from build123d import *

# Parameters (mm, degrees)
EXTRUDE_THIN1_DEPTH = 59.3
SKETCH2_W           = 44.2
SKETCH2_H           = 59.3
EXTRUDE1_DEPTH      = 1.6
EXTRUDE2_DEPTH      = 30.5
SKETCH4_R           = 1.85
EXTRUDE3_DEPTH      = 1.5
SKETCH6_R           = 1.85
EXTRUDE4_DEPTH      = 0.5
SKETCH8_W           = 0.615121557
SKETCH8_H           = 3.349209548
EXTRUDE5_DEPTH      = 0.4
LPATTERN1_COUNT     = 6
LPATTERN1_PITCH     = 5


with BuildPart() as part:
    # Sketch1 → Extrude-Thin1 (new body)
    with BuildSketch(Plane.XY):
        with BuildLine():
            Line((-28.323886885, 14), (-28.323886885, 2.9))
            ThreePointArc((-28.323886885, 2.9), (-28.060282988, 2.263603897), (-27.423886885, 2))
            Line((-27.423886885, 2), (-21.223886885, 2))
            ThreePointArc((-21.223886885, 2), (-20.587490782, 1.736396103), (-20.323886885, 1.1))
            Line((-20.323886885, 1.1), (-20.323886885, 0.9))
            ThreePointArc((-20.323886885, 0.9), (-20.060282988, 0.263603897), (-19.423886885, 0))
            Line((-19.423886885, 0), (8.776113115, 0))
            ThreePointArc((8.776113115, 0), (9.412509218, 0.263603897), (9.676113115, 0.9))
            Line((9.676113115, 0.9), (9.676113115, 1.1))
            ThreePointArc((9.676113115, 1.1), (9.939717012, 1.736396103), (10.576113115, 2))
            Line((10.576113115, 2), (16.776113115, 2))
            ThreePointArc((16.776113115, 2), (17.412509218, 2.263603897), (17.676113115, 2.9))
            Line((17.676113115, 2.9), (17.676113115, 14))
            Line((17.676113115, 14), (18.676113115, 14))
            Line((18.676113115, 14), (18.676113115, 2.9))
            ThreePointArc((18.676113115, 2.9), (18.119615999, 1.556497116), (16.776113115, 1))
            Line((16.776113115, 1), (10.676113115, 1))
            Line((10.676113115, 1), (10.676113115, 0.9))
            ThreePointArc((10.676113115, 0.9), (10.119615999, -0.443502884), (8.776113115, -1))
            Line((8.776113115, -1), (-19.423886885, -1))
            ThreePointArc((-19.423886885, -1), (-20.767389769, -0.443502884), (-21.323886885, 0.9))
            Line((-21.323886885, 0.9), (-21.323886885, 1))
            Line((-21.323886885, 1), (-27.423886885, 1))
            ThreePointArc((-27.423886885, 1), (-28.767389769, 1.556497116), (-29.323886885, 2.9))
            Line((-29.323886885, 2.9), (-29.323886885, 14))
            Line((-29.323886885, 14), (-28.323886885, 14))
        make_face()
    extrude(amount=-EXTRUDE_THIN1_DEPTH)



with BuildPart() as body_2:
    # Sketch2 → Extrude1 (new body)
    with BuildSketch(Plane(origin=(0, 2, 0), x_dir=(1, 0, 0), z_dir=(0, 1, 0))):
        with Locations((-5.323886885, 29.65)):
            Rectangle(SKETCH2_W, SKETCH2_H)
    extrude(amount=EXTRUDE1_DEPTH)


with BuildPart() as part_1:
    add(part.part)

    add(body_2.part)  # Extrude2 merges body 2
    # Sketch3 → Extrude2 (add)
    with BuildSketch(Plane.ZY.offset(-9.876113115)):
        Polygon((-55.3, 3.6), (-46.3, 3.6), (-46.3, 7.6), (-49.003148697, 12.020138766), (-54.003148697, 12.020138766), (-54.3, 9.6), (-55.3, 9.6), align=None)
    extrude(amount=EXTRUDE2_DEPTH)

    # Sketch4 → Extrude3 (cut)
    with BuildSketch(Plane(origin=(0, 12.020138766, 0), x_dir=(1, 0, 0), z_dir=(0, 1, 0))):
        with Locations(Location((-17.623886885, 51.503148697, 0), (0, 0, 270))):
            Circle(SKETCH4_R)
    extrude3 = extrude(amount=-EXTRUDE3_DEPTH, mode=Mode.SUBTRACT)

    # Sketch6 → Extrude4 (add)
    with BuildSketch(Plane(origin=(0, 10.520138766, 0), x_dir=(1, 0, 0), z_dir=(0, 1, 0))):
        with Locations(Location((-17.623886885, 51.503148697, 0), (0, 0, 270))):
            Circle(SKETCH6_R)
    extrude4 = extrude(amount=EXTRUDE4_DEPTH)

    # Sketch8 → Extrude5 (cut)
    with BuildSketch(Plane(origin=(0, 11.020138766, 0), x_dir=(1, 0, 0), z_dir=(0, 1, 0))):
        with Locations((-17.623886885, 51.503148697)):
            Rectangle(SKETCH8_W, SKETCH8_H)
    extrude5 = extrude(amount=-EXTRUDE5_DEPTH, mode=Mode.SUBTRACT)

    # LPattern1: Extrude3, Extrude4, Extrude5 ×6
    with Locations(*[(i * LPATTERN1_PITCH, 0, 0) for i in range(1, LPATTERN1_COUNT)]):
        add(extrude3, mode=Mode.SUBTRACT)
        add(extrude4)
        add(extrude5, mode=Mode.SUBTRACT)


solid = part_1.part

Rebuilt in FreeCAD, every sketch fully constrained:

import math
import FreeCAD as App
import Part
import Sketcher

V = App.Vector

doc = App.newDocument("Part")
params = doc.addObject("Spreadsheet::Sheet", "Params")
for row, (alias, value) in enumerate([
    ("sketch1_radius", "1.9 mm"),
    ("sketch1_radius2", "0.9 mm"),
    ("sketch1_width", "6.1 mm"),
    ("sketch1_width2", "28.2 mm"),
    ("sketch1_height", "11.1 mm"),
    ("pad1_length", "59.3 mm"),
    ("sketch2_width", "44.2 mm"),
    ("sketch2_height", "59.3 mm"),
    ("pad2_length", "1.6 mm"),
    ("sketch3_width", "4 mm"),
    ("sketch3_width2", "6 mm"),
    ("sketch3_height", "9 mm"),
    ("sketch3_height2", "5 mm"),
    ("sketch3_height3", "1 mm"),
    ("pad3_length", "30.5 mm"),
    ("sketch4_diameter", "3.7 mm"),
    ("pocket1_length", "1.5 mm"),
    ("sketch5_diameter", "3.7 mm"),
    ("pad4_length", "0.5 mm"),
    ("pocket2_length", "0.4 mm"),
    ("linearpattern_pitch", "5 mm"),
], start=1):
    params.set(f"A{row}", alias)
    params.set(f"B{row}", "=" + value)
    params.setAlias(f"B{row}", alias)

body = doc.addObject("PartDesign::Body", "Body")

# Sketch on XY plane
sketch1 = doc.addObject("Sketcher::SketchObject", "Sketch")
body.addObject(sketch1)
sketch1.AttachmentSupport = (doc.XY_Plane, [""])
sketch1.MapMode = "FlatFace"
sketch1.addGeometry([
    Part.LineSegment(V(-28.32, 2.9, 0), V(-28.32, 14, 0)),  # 0
    Part.LineSegment(V(-28.32, 14, 0), V(-29.32, 14, 0)),  # 1
    Part.LineSegment(V(-29.32, 14, 0), V(-29.32, 2.9, 0)),  # 2
    Part.ArcOfCircle(Part.Circle(V(-27.42, 2.9, 0), V(0, 0, 1), 1.9), math.radians(-180), math.radians(-90)),  # 3
    Part.LineSegment(V(-27.42, 1, 0), V(-21.32, 1, 0)),  # 4
    Part.LineSegment(V(-21.32, 1, 0), V(-21.32, 0.9, 0)),  # 5
    Part.ArcOfCircle(Part.Circle(V(-19.42, 0.9, 0), V(0, 0, 1), 1.9), math.radians(-180), math.radians(-90)),  # 6
    Part.LineSegment(V(-19.42, -1, 0), V(8.78, -1, 0)),  # 7
    Part.ArcOfCircle(Part.Circle(V(8.78, 0.9, 0), V(0, 0, 1), 1.9), math.radians(-90), math.radians(0)),  # 8
    Part.LineSegment(V(10.68, 0.9, 0), V(10.68, 1, 0)),  # 9
    Part.LineSegment(V(10.68, 1, 0), V(16.78, 1, 0)),  # 10
    Part.ArcOfCircle(Part.Circle(V(16.78, 2.9, 0), V(0, 0, 1), 1.9), math.radians(-90), math.radians(0)),  # 11
    Part.LineSegment(V(18.68, 2.9, 0), V(18.68, 14, 0)),  # 12
    Part.LineSegment(V(18.68, 14, 0), V(17.68, 14, 0)),  # 13
    Part.LineSegment(V(17.68, 14, 0), V(17.68, 2.9, 0)),  # 14
    Part.ArcOfCircle(Part.Circle(V(16.78, 2.9, 0), V(0, 0, 1), 0.9), math.radians(-90), math.radians(0)),  # 15
    Part.LineSegment(V(16.78, 2, 0), V(10.58, 2, 0)),  # 16
    Part.ArcOfCircle(Part.Circle(V(10.58, 1.1, 0), V(0, 0, 1), 0.9), math.radians(90), math.radians(180)),  # 17
    Part.LineSegment(V(9.68, 1.1, 0), V(9.68, 0.9, 0)),  # 18
    Part.ArcOfCircle(Part.Circle(V(8.78, 0.9, 0), V(0, 0, 1), 0.9), math.radians(-90), math.radians(0)),  # 19
    Part.LineSegment(V(8.78, 0, 0), V(-19.42, 0, 0)),  # 20
    Part.ArcOfCircle(Part.Circle(V(-19.42, 0.9, 0), V(0, 0, 1), 0.9), math.radians(180), math.radians(270)),  # 21
    Part.LineSegment(V(-20.32, 0.9, 0), V(-20.32, 1.1, 0)),  # 22
    Part.ArcOfCircle(Part.Circle(V(-21.22, 1.1, 0), V(0, 0, 1), 0.9), math.radians(0), math.radians(90)),  # 23
    Part.LineSegment(V(-21.22, 2, 0), V(-27.42, 2, 0)),  # 24
    Part.ArcOfCircle(Part.Circle(V(-27.42, 2.9, 0), V(0, 0, 1), 0.9), math.radians(180), math.radians(270)),  # 25
], False)
sketch1.addConstraint([
    Sketcher.Constraint("Coincident", 0, 2, 1, 1),
    Sketcher.Constraint("Coincident", 1, 2, 2, 1),
    Sketcher.Constraint("Tangent", 2, 2, 3, 1),
    Sketcher.Constraint("Tangent", 3, 2, 4, 1),
    Sketcher.Constraint("Coincident", 4, 2, 5, 1),
    Sketcher.Constraint("Tangent", 5, 2, 6, 1),
    Sketcher.Constraint("Tangent", 6, 2, 7, 1),
    Sketcher.Constraint("Tangent", 7, 2, 8, 1),
    Sketcher.Constraint("Tangent", 8, 2, 9, 1),
    Sketcher.Constraint("Coincident", 9, 2, 10, 1),
    Sketcher.Constraint("Tangent", 10, 2, 11, 1),
    Sketcher.Constraint("Tangent", 11, 2, 12, 1),
    Sketcher.Constraint("Coincident", 12, 2, 13, 1),
    Sketcher.Constraint("Coincident", 13, 2, 14, 1),
    Sketcher.Constraint("Tangent", 14, 2, 15, 2),
    Sketcher.Constraint("Tangent", 15, 1, 16, 1),
    Sketcher.Constraint("Tangent", 16, 2, 17, 1),
    Sketcher.Constraint("Tangent", 17, 2, 18, 1),
    Sketcher.Constraint("Tangent", 18, 2, 19, 2),
    Sketcher.Constraint("Tangent", 19, 1, 20, 1),
    Sketcher.Constraint("Tangent", 20, 2, 21, 2),
    Sketcher.Constraint("Tangent", 21, 1, 22, 1),
    Sketcher.Constraint("Tangent", 22, 2, 23, 1),
    Sketcher.Constraint("Tangent", 23, 2, 24, 1),
    Sketcher.Constraint("Tangent", 24, 2, 25, 2),
    Sketcher.Constraint("Tangent", 25, 1, 0, 1),
    Sketcher.Constraint("Vertical", 0),
    Sketcher.Constraint("Horizontal", 1),
    Sketcher.Constraint("Vertical", 2),
    Sketcher.Constraint("Horizontal", 4),
    Sketcher.Constraint("Vertical", 5),
    Sketcher.Constraint("Horizontal", 7),
    Sketcher.Constraint("Vertical", 9),
    Sketcher.Constraint("Horizontal", 10),
    Sketcher.Constraint("Vertical", 12),
    Sketcher.Constraint("Horizontal", 13),
    Sketcher.Constraint("Vertical", 14),
    Sketcher.Constraint("Horizontal", 16),
    Sketcher.Constraint("Vertical", 18),
    Sketcher.Constraint("Horizontal", 20),
    Sketcher.Constraint("Vertical", 22),
    Sketcher.Constraint("Horizontal", 24),
    Sketcher.Constraint("Coincident", 15, 3, 11, 3),
    Sketcher.Constraint("Coincident", 19, 3, 8, 3),
    Sketcher.Constraint("Coincident", 21, 3, 6, 3),
    Sketcher.Constraint("Coincident", 25, 3, 3, 3),
    Sketcher.Constraint("Equal", 3, 6),
    Sketcher.Constraint("Equal", 6, 8),
    Sketcher.Constraint("Equal", 8, 11),
    Sketcher.Constraint("Equal", 15, 17),
    Sketcher.Constraint("Equal", 17, 19),
    Sketcher.Constraint("Equal", 21, 23),
    Sketcher.Constraint("Equal", 23, 25),
    Sketcher.Constraint("PointOnObject", 19, 1, -1),
    Sketcher.Constraint("Horizontal", 3, 3, 11, 3),
    Sketcher.Constraint("Horizontal", 1, 2, 12, 2),
    Sketcher.Constraint("Equal", 4, 10),
    Sketcher.Constraint("Radius", 3, 1.9),
    Sketcher.Constraint("Radius", 15, 0.9),
    Sketcher.Constraint("DistanceX", 4, 1, 4, 2, 6.1),
    Sketcher.Constraint("DistanceX", 7, 1, 7, 2, 28.2),
    Sketcher.Constraint("DistanceY", 0, 1, 0, 2, 11.1),
    Sketcher.Constraint("DistanceY", 5, 2, 5, 1, 0.1),
    Sketcher.Constraint("DistanceX", 3, 3, -1, 1, 27.423887),
])
sketch1.setExpression("Constraints[57]", "Params.sketch1_radius")
sketch1.setExpression("Constraints[58]", "Params.sketch1_radius2")
sketch1.setExpression("Constraints[59]", "Params.sketch1_width")
sketch1.setExpression("Constraints[60]", "Params.sketch1_width2")
sketch1.setExpression("Constraints[61]", "Params.sketch1_height")
pad1 = doc.addObject("PartDesign::Pad", "Pad")
body.addObject(pad1)
pad1.Profile = sketch1
pad1.setExpression("Length", "Params.pad1_length")
pad1.Reversed = True
body2 = doc.addObject("PartDesign::Body", "Body001")

# Sketch on XZ plane
sketch2 = doc.addObject("Sketcher::SketchObject", "Sketch001")
body2.addObject(sketch2)
sketch2.AttachmentSupport = (doc.getObject("XZ_Plane001"), [""])
sketch2.MapMode = "FlatFace"
sketch2.AttachmentOffset = App.Placement(V(0, 0, -2), App.Rotation())
sketch2.addGeometry([
    Part.LineSegment(V(-27, -59, 0), V(-27, 0, 0)),
    Part.LineSegment(V(-27, 0, 0), V(17, 0, 0)),
    Part.LineSegment(V(17, 0, 0), V(17, -59, 0)),
    Part.LineSegment(V(17, -59, 0), V(-27, -59, 0)),
], False)
sketch2.addConstraint([
    Sketcher.Constraint("Coincident", 0, 2, 1, 1),
    Sketcher.Constraint("Coincident", 1, 2, 2, 1),
    Sketcher.Constraint("Coincident", 2, 2, 3, 1),
    Sketcher.Constraint("Coincident", 3, 2, 0, 1),
    Sketcher.Constraint("Vertical", 0),
    Sketcher.Constraint("Horizontal", 1),
    Sketcher.Constraint("Vertical", 2),
    Sketcher.Constraint("Horizontal", 3),
    Sketcher.Constraint("PointOnObject", 0, 2, -1),
    Sketcher.Constraint("DistanceX", 1, 1, 1, 2, 44.2),
    Sketcher.Constraint("DistanceY", 0, 1, 0, 2, 59.3),
    Sketcher.Constraint("DistanceX", 0, 2, -1, 1, 27.423887),
])
sketch2.setExpression("Constraints[9]", "Params.sketch2_width")
sketch2.setExpression("Constraints[10]", "Params.sketch2_height")
pad2 = doc.addObject("PartDesign::Pad", "Pad001")
body2.addObject(pad2)
pad2.Profile = sketch2
pad2.setExpression("Length", "Params.pad2_length")
pad2.Reversed = True
doc.recompute()

boolean = doc.addObject("PartDesign::Boolean", "Boolean")
body.addObject(boolean)
boolean.Type = "Fuse"
boolean.addObjects([body2])

# Sketch on YZ plane
sketch3 = doc.addObject("Sketcher::SketchObject", "Sketch002")
body.addObject(sketch3)
sketch3.AttachmentSupport = (doc.YZ_Plane, [""])
sketch3.MapMode = "FlatFace"
sketch3.AttachmentOffset = App.Placement(V(0, 0, 9.876113), App.Rotation())
sketch3.addGeometry([
    Part.LineSegment(V(3.6, -55.3, 0), V(3.6, -46.3, 0)),  # 0
    Part.LineSegment(V(3.6, -46.3, 0), V(7.6, -46.3, 0)),  # 1
    Part.LineSegment(V(7.6, -46.3, 0), V(12, -49, 0)),  # 2
    Part.LineSegment(V(12, -49, 0), V(12, -54, 0)),  # 3
    Part.LineSegment(V(12, -54, 0), V(9.6, -54.3, 0)),  # 4
    Part.LineSegment(V(9.6, -54.3, 0), V(9.6, -55.3, 0)),  # 5
    Part.LineSegment(V(9.6, -55.3, 0), V(3.6, -55.3, 0)),  # 6
], False)
sketch3.addConstraint([
    Sketcher.Constraint("Coincident", 0, 2, 1, 1),
    Sketcher.Constraint("Coincident", 1, 2, 2, 1),
    Sketcher.Constraint("Coincident", 2, 2, 3, 1),
    Sketcher.Constraint("Coincident", 3, 2, 4, 1),
    Sketcher.Constraint("Coincident", 4, 2, 5, 1),
    Sketcher.Constraint("Coincident", 5, 2, 6, 1),
    Sketcher.Constraint("Coincident", 6, 2, 0, 1),
    Sketcher.Constraint("Vertical", 0),
    Sketcher.Constraint("Horizontal", 1),
    Sketcher.Constraint("Vertical", 3),
    Sketcher.Constraint("Vertical", 5),
    Sketcher.Constraint("Horizontal", 6),
    Sketcher.Constraint("DistanceX", 1, 1, 1, 2, 4.0),
    Sketcher.Constraint("DistanceX", 6, 2, 6, 1, 6.0),
    Sketcher.Constraint("DistanceY", 0, 1, 0, 2, 9.0),
    Sketcher.Constraint("DistanceY", 3, 2, 3, 1, 5.0),
    Sketcher.Constraint("DistanceY", 5, 2, 5, 1, 1.0),
    Sketcher.Constraint("DistanceX", -1, 1, 0, 2, 3.6),
    Sketcher.Constraint("DistanceY", 0, 2, -1, 1, 46.3),
    Sketcher.Constraint("Distance", 2, 5.181181),
    Sketcher.Constraint("DistanceX", -1, 1, 2, 2, 12.020139),
])
sketch3.setExpression("Constraints[12]", "Params.sketch3_width")
sketch3.setExpression("Constraints[13]", "Params.sketch3_width2")
sketch3.setExpression("Constraints[14]", "Params.sketch3_height")
sketch3.setExpression("Constraints[15]", "Params.sketch3_height2")
sketch3.setExpression("Constraints[16]", "Params.sketch3_height3")
pad3 = doc.addObject("PartDesign::Pad", "Pad002")
body.addObject(pad3)
pad3.Profile = sketch3
pad3.setExpression("Length", "Params.pad3_length")
pad3.Reversed = True

# Sketch on XZ plane
sketch4 = doc.addObject("Sketcher::SketchObject", "Sketch003")
body.addObject(sketch4)
sketch4.AttachmentSupport = (doc.XZ_Plane, [""])
sketch4.MapMode = "FlatFace"
sketch4.AttachmentOffset = App.Placement(V(0, 0, -12.020139), App.Rotation())
sketch4.addGeometry(Part.Circle(V(-17.6, -51.5, 0), V(0, 0, 1), 1.9), False)
sketch4.addConstraint([
    Sketcher.Constraint("Diameter", 0, 3.7),
    Sketcher.Constraint("DistanceY", 0, 3, -1, 1, 51.503149),
    Sketcher.Constraint("DistanceX", 0, 3, -1, 1, 17.623887),
])
sketch4.setExpression("Constraints[0]", "Params.sketch4_diameter")
pocket1 = doc.addObject("PartDesign::Pocket", "Pocket")
body.addObject(pocket1)
pocket1.Profile = sketch4
pocket1.setExpression("Length", "Params.pocket1_length")
pocket1.Reversed = True

# Sketch on XZ plane
sketch5 = doc.addObject("Sketcher::SketchObject", "Sketch004")
body.addObject(sketch5)
sketch5.AttachmentSupport = (doc.XZ_Plane, [""])
sketch5.MapMode = "FlatFace"
sketch5.AttachmentOffset = App.Placement(V(0, 0, -10.520139), App.Rotation())
sketch5.addGeometry(Part.Circle(V(-17.6, -51.5, 0), V(0, 0, 1), 1.9), False)
sketch5.addConstraint([
    Sketcher.Constraint("Diameter", 0, 3.7),
    Sketcher.Constraint("DistanceY", 0, 3, -1, 1, 51.503149),
    Sketcher.Constraint("DistanceX", 0, 3, -1, 1, 17.623887),
])
sketch5.setExpression("Constraints[0]", "Params.sketch5_diameter")
pad4 = doc.addObject("PartDesign::Pad", "Pad003")
body.addObject(pad4)
pad4.Profile = sketch5
pad4.setExpression("Length", "Params.pad4_length")
pad4.Reversed = True

# Sketch on XZ plane
sketch6 = doc.addObject("Sketcher::SketchObject", "Sketch005")
body.addObject(sketch6)
sketch6.AttachmentSupport = (doc.XZ_Plane, [""])
sketch6.MapMode = "FlatFace"
sketch6.AttachmentOffset = App.Placement(V(0, 0, -11.020139), App.Rotation())
sketch6.addGeometry([
    Part.LineSegment(V(-17.9, -53.2, 0), V(-17.9, -49.8, 0)),
    Part.LineSegment(V(-17.9, -49.8, 0), V(-17.3, -49.8, 0)),
    Part.LineSegment(V(-17.3, -49.8, 0), V(-17.3, -53.2, 0)),
    Part.LineSegment(V(-17.3, -53.2, 0), V(-17.9, -53.2, 0)),
], False)
sketch6.addConstraint([
    Sketcher.Constraint("Coincident", 0, 2, 1, 1),
    Sketcher.Constraint("Coincident", 1, 2, 2, 1),
    Sketcher.Constraint("Coincident", 2, 2, 3, 1),
    Sketcher.Constraint("Coincident", 3, 2, 0, 1),
    Sketcher.Constraint("Vertical", 0),
    Sketcher.Constraint("Horizontal", 1),
    Sketcher.Constraint("Vertical", 2),
    Sketcher.Constraint("Horizontal", 3),
    Sketcher.Constraint("DistanceX", 1, 1, 1, 2, 0.615122),
    Sketcher.Constraint("DistanceY", 0, 1, 0, 2, 3.34921),
    Sketcher.Constraint("DistanceX", 0, 2, -1, 1, 17.931448),
    Sketcher.Constraint("DistanceY", 0, 2, -1, 1, 49.828544),
])
pocket2 = doc.addObject("PartDesign::Pocket", "Pocket001")
body.addObject(pocket2)
pocket2.Profile = sketch6
pocket2.setExpression("Length", "Params.pocket2_length")
pocket2.Reversed = True
doc.recompute()

linearpattern = doc.addObject("PartDesign::LinearPattern", "LinearPattern")
body.addObject(linearpattern)
linearpattern.Originals = [pocket1, pad4, pocket2]
linearpattern.Direction = (doc.X_Axis, [""])
linearpattern.Mode = "offset"
linearpattern.setExpression("Offset", "Params.linearpattern_pitch")
linearpattern.Occurrences = 6
body.Tip = linearpattern

doc.recompute()
